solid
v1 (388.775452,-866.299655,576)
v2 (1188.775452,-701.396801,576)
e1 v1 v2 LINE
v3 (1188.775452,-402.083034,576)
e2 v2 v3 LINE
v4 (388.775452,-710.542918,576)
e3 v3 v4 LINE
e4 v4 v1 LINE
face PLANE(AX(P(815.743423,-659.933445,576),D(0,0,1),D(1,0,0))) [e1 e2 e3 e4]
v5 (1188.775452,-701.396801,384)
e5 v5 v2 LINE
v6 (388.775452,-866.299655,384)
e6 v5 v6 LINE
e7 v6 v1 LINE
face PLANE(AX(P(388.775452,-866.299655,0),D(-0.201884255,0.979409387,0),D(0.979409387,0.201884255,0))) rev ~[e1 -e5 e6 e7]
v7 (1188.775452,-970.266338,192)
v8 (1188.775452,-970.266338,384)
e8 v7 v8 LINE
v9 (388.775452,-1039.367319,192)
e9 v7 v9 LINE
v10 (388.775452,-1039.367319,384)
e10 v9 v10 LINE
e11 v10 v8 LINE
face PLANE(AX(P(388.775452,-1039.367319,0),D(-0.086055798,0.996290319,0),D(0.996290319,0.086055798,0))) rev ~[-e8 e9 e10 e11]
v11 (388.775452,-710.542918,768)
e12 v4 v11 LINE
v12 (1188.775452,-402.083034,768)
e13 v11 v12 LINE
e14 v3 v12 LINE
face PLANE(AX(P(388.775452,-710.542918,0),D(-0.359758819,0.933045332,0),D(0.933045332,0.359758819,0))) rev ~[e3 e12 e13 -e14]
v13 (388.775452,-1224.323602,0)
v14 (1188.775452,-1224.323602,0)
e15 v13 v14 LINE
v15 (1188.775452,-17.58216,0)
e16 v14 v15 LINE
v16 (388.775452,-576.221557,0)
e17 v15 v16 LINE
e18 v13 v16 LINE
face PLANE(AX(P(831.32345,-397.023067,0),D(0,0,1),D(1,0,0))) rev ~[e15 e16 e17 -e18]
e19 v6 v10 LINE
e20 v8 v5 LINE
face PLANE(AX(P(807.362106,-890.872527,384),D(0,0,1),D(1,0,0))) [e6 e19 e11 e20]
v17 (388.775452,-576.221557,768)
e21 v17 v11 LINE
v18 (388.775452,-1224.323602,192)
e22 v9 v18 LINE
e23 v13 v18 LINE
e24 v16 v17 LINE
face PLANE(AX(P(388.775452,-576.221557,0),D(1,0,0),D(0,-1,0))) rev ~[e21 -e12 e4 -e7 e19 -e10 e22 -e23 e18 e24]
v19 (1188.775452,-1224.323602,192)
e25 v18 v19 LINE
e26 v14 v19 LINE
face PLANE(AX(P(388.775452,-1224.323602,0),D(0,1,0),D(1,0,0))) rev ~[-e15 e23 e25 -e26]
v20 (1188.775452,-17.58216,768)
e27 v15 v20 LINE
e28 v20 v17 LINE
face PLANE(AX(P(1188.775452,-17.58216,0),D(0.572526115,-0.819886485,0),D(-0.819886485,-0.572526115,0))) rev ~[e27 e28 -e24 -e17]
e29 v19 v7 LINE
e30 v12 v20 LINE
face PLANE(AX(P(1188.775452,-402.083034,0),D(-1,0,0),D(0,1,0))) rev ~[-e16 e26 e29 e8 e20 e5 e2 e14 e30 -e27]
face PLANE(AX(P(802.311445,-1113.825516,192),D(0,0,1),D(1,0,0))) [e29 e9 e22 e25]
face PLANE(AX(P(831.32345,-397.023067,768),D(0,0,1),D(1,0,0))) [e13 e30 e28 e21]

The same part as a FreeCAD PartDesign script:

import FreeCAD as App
import Part
import Sketcher
from FreeCAD import Vector

doc = App.newDocument("Part")
params = doc.addObject("Spreadsheet::Sheet", "Params")
for row, (alias, value) in enumerate([
    ("sketch1_width", "800 mm"),
    ("pad1_length", "192 mm"),
    ("pad2_length", "384 mm"),
    ("pad3_length", "576 mm"),
    ("pad4_length", "768 mm"),
], start=1):
    params.set(f"A{row}", alias)
    params.set(f"B{row}", "=" + value)
    params.setAlias(f"B{row}", alias)

body = doc.addObject("PartDesign::Body", "Body")

# Sketch on XY plane
sketch1 = doc.addObject("Sketcher::SketchObject", "Sketch")
body.addObject(sketch1)
sketch1.AttachmentSupport = (doc.XY_Plane, [""])
sketch1.MapMode = "FlatFace"
sketch1.addGeometry(Part.LineSegment(Vector(1188.775452, -1224.323602, 0), Vector(1188.775452, -970.266338, 0)), False)
sketch1.addGeometry(Part.LineSegment(Vector(1188.775452, -970.266338, 0), Vector(388.775452, -1039.367319, 0)), False)
sketch1.addGeometry(Part.LineSegment(Vector(388.775452, -1039.367319, 0), Vector(388.775452, -1224.323602, 0)), False)
sketch1.addGeometry(Part.LineSegment(Vector(388.775452, -1224.323602, 0), Vector(1188.775452, -1224.323602, 0)), False)
sketch1.addConstraint(Sketcher.Constraint("Coincident", 0, 2, 1, 1))
sketch1.addConstraint(Sketcher.Constraint("Coincident", 1, 2, 2, 1))
sketch1.addConstraint(Sketcher.Constraint("Coincident", 2, 2, 3, 1))
sketch1.addConstraint(Sketcher.Constraint("Coincident", 3, 2, 0, 1))
sketch1.addConstraint(Sketcher.Constraint("Vertical", 0))
sketch1.addConstraint(Sketcher.Constraint("Vertical", 2))
sketch1.addConstraint(Sketcher.Constraint("Horizontal", 3))
sketch1.addConstraint(Sketcher.Constraint("DistanceX", 3, 1, 3, 2, 800.0))
sketch1.addConstraint(Sketcher.Constraint("DistanceY", 0, 1, 0, 2, 254.057265))
sketch1.addConstraint(Sketcher.Constraint("DistanceY", 2, 2, 2, 1, 184.956283))
sketch1.addConstraint(Sketcher.Constraint("DistanceY", 1, 2, -1, 1, 1039.367319))
sketch1.addConstraint(Sketcher.Constraint("DistanceX", -1, 1, 0, 2, 1188.775452))
sketch1.setExpression("Constraints[7]", "Params.sketch1_width")
pad1 = doc.addObject("PartDesign::Pad", "Pad")
body.addObject(pad1)
pad1.Profile = sketch1
pad1.setExpression("Length", "Params.pad1_length")

# Sketch on XY plane
sketch2 = doc.addObject("Sketcher::SketchObject", "Sketch001")
body.addObject(sketch2)
sketch2.AttachmentSupport = (doc.XY_Plane, [""])
sketch2.MapMode = "FlatFace"
sketch2.addGeometry(Part.LineSegment(Vector(1188.775452, -970.266338, 0), Vector(1188.775452, -701.396801, 0)), False)
sketch2.addGeometry(Part.LineSegment(Vector(1188.775452, -701.396801, 0), Vector(388.775452, -866.299655, 0)), False)
sketch2.addGeometry(Part.LineSegment(Vector(388.775452, -866.299655, 0), Vector(388.775452, -1039.367319, 0)), False)
sketch2.addGeometry(Part.LineSegment(Vector(388.775452, -1039.367319, 0), Vector(1188.775452, -970.266338, 0)), False)
sketch2.addConstraint(Sketcher.Constraint("Coincident", 0, 2, 1, 1))
sketch2.addConstraint(Sketcher.Constraint("Coincident", 1, 2, 2, 1))
sketch2.addConstraint(Sketcher.Constraint("Coincident", 2, 2, 3, 1))
sketch2.addConstraint(Sketcher.Constraint("Coincident", 3, 2, 0, 1))
sketch2.addConstraint(Sketcher.Constraint("Vertical", 0))
sketch2.addConstraint(Sketcher.Constraint("Vertical", 2))
sketch2.addConstraint(Sketcher.Constraint("DistanceX", 1, 2, 0, 2, 800.0))
sketch2.addConstraint(Sketcher.Constraint("Distance", 1, 816.8188))
sketch2.addConstraint(Sketcher.Constraint("DistanceY", 0, 2, -1, 1, 701.396801))
sketch2.addConstraint(Sketcher.Constraint("DistanceY", 0, 1, 0, 2, 268.869537))
sketch2.addConstraint(Sketcher.Constraint("DistanceY", 2, 2, 2, 1, 173.067663))
sketch2.addConstraint(Sketcher.Constraint("DistanceX", -1, 1, 0, 2, 1188.775452))
pad2 = doc.addObject("PartDesign::Pad", "Pad001")
body.addObject(pad2)
pad2.Profile = sketch2
pad2.setExpression("Length", "Params.pad2_length")

# Sketch on XY plane
sketch3 = doc.addObject("Sketcher::SketchObject", "Sketch002")
body.addObject(sketch3)
sketch3.AttachmentSupport = (doc.XY_Plane, [""])
sketch3.MapMode = "FlatFace"
sketch3.addGeometry(Part.LineSegment(Vector(1188.775452, -701.396801, 0), Vector(1188.775452, -402.083034, 0)), False)
sketch3.addGeometry(Part.LineSegment(Vector(1188.775452, -402.083034, 0), Vector(388.775452, -710.542918, 0)), False)
sketch3.addGeometry(Part.LineSegment(Vector(388.775452, -710.542918, 0), Vector(388.775452, -866.299655, 0)), False)
sketch3.addGeometry(Part.LineSegment(Vector(388.775452, -866.299655, 0), Vector(1188.775452, -701.396801, 0)), False)
sketch3.addConstraint(Sketcher.Constraint("Coincident", 0, 2, 1, 1))
sketch3.addConstraint(Sketcher.Constraint("Coincident", 1, 2, 2, 1))
sketch3.addConstraint(Sketcher.Constraint("Coincident", 2, 2, 3, 1))
sketch3.addConstraint(Sketcher.Constraint("Coincident", 3, 2, 0, 1))
sketch3.addConstraint(Sketcher.Constraint("Vertical", 0))
sketch3.addConstraint(Sketcher.Constraint("Vertical", 2))
sketch3.addConstraint(Sketcher.Constraint("DistanceX", 1, 2, 0, 2, 800.0))
sketch3.addConstraint(Sketcher.Constraint("Distance", 3, 816.8188))
sketch3.addConstraint(Sketcher.Constraint("DistanceY", 3, 2, -1, 1, 701.396801))
sketch3.addConstraint(Sketcher.Constraint("Distance", 1, 857.40743))
sketch3.addConstraint(Sketcher.Constraint("DistanceY", 0, 1, 0, 2, 299.313767))
sketch3.addConstraint(Sketcher.Constraint("DistanceX", -1, 1, 0, 2, 1188.775452))
pad3 = doc.addObject("PartDesign::Pad", "Pad002")
body.addObject(pad3)
pad3.Profile = sketch3
pad3.setExpression("Length", "Params.pad3_length")

# Sketch on XY plane
sketch4 = doc.addObject("Sketcher::SketchObject", "Sketch003")
body.addObject(sketch4)
sketch4.AttachmentSupport = (doc.XY_Plane, [""])
sketch4.MapMode = "FlatFace"
sketch4.addGeometry(Part.LineSegment(Vector(1188.775452, -402.083034, 0), Vector(1188.775452, -17.58216, 0)), False)
sketch4.addGeometry(Part.LineSegment(Vector(1188.775452, -17.58216, 0), Vector(388.775452, -576.221557, 0)), False)
sketch4.addGeometry(Part.LineSegment(Vector(388.775452, -576.221557, 0), Vector(388.775452, -710.542918, 0)), False)
sketch4.addGeometry(Part.LineSegment(Vector(388.775452, -710.542918, 0), Vector(1188.775452, -402.083034, 0)), False)
sketch4.addConstraint(Sketcher.Constraint("Coincident", 0, 2, 1, 1))
sketch4.addConstraint(Sketcher.Constraint("Coincident", 1, 2, 2, 1))
sketch4.addConstraint(Sketcher.Constraint("Coincident", 2, 2, 3, 1))
sketch4.addConstraint(Sketcher.Constraint("Coincident", 3, 2, 0, 1))
sketch4.addConstraint(Sketcher.Constraint("Vertical", 0))
sketch4.addConstraint(Sketcher.Constraint("Vertical", 2))
sketch4.addConstraint(Sketcher.Constraint("DistanceX", 1, 2, 0, 2, 800.0))
sketch4.addConstraint(Sketcher.Constraint("DistanceY", 2, 2, 2, 1, 134.321361))
sketch4.addConstraint(Sketcher.Constraint("Distance", 1, 975.744831))
sketch4.addConstraint(Sketcher.Constraint("Distance", 3, 857.40743))
sketch4.addConstraint(Sketcher.Constraint("DistanceY", 0, 2, -1, 1, 17.58216))
sketch4.addConstraint(Sketcher.Constraint("DistanceX", -1, 1, 0, 2, 1188.775452))
pad4 = doc.addObject("PartDesign::Pad", "Pad003")
body.addObject(pad4)
pad4.Profile = sketch4
pad4.setExpression("Length", "Params.pad4_length")

doc.recompute()
